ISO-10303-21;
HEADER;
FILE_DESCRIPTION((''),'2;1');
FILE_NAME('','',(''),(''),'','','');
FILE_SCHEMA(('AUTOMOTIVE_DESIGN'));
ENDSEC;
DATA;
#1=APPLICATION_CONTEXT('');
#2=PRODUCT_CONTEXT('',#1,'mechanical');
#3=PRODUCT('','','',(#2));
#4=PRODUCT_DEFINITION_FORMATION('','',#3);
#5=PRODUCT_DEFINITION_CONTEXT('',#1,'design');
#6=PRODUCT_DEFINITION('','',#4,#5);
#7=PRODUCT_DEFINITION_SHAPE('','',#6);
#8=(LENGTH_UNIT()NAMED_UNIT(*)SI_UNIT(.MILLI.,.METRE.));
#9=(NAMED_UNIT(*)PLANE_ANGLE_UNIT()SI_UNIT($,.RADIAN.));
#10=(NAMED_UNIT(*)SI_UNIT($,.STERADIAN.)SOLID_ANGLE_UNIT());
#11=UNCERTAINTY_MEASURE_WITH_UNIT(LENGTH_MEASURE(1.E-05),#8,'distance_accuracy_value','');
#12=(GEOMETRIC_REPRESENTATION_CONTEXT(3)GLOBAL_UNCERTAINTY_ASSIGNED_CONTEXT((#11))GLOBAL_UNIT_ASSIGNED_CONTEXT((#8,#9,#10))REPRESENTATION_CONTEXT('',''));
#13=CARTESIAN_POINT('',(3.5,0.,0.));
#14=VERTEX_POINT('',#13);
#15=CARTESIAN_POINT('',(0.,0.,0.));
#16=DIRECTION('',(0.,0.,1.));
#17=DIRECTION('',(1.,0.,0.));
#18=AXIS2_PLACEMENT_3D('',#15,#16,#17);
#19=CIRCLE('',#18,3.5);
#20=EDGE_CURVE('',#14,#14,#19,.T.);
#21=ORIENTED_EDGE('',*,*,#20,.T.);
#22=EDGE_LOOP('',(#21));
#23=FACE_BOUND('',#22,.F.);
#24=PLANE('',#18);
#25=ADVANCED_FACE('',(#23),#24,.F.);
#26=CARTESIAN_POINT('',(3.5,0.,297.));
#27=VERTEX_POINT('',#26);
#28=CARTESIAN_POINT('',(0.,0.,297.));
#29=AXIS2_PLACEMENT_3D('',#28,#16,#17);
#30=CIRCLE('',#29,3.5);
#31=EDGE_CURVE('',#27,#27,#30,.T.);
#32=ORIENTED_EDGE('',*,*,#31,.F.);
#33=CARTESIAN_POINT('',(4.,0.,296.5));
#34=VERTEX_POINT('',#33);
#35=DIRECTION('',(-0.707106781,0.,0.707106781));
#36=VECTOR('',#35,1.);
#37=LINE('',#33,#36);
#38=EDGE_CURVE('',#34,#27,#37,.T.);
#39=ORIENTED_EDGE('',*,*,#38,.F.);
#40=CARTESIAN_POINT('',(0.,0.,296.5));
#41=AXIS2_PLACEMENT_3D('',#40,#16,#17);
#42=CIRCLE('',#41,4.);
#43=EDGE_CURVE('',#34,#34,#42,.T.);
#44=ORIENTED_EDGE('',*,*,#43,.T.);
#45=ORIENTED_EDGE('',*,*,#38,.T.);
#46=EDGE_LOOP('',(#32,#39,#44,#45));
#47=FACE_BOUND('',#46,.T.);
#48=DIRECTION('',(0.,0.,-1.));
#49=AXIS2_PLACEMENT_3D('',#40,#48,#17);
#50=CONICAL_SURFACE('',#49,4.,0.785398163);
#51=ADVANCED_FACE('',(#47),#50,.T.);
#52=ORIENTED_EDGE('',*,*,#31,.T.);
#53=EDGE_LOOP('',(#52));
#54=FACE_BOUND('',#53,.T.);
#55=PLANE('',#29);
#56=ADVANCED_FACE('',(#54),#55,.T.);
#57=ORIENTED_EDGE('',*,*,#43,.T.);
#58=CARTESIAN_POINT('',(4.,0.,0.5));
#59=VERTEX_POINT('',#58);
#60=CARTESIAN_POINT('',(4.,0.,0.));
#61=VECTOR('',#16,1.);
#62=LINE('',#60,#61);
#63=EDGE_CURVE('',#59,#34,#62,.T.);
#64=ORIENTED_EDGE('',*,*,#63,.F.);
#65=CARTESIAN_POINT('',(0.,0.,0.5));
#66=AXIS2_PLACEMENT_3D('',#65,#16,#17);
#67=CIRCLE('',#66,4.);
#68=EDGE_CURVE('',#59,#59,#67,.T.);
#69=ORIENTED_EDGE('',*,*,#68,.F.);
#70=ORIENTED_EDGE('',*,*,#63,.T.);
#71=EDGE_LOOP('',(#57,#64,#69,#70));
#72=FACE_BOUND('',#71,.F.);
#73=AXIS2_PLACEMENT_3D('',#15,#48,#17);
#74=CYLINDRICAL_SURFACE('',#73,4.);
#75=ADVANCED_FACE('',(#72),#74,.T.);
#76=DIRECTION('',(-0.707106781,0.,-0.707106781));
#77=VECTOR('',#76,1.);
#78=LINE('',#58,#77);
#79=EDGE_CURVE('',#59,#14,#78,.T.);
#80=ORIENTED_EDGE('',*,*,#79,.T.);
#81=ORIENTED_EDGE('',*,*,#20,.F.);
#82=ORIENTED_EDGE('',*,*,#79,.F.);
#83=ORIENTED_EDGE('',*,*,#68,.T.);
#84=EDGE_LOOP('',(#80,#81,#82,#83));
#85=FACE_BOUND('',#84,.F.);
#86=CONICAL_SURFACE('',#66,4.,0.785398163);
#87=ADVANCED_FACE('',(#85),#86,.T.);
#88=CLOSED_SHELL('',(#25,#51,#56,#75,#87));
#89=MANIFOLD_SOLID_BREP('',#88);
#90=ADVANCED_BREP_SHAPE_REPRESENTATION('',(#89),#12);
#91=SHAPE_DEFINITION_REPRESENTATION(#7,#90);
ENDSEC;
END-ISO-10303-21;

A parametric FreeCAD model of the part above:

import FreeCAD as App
import Part
import Sketcher

V = App.Vector
Q = App.Units.Quantity


def edges_at(feature, points):
    """Names of the edges that pass closest to the given points."""
    edges = feature.Shape.Edges
    near = lambda p: min(range(len(edges)), key=lambda i: edges[i].distToShape(Part.Vertex(*p))[0])
    return sorted({f"Edge{near(p) + 1}" for p in points})

doc = App.newDocument("Part")
params = doc.addObject("Spreadsheet::Sheet", "Params")
for row, (alias, value) in enumerate([
    ("sketch1_diameter", "8 mm"),
    ("pad1_length", "297 mm"),
    ("chamfer_size", "0.5 mm"),
], start=1):
    params.set(f"A{row}", alias)
    params.set(f"B{row}", "=" + value)
    params.setAlias(f"B{row}", alias)

body = doc.addObject("PartDesign::Body", "Body")

sketch1 = body.newObject("Sketcher::SketchObject", "Sketch")
sketch1.AttachmentSupport = (doc.getObject("XY_Plane"), [""])
sketch1.MapMode = "FlatFace"
sketch1.addGeometry(Part.Circle(V(0, 0, 0), V(0, 0, 1), 4), False)
sketch1.addConstraint(Sketcher.Constraint("Coincident", 0, 3, -1, 1))
sketch1.addConstraint(Sketcher.Constraint("Diameter", 0, Q("8 mm")))
sketch1.setExpression("Constraints[1]", "Params.sketch1_diameter")
pad1 = body.newObject("PartDesign::Pad", "Pad")
pad1.Profile = sketch1
pad1.setExpression("Length", "Params.pad1_length")
doc.recompute()

chamfer = body.newObject("PartDesign::Chamfer", "Chamfer")
chamfer.Base = (pad1, edges_at(pad1, [(-4, 0, 0), (-4, 0, 297)]))
chamfer.setExpression("Size", "Params.chamfer_size")

doc.recompute()
